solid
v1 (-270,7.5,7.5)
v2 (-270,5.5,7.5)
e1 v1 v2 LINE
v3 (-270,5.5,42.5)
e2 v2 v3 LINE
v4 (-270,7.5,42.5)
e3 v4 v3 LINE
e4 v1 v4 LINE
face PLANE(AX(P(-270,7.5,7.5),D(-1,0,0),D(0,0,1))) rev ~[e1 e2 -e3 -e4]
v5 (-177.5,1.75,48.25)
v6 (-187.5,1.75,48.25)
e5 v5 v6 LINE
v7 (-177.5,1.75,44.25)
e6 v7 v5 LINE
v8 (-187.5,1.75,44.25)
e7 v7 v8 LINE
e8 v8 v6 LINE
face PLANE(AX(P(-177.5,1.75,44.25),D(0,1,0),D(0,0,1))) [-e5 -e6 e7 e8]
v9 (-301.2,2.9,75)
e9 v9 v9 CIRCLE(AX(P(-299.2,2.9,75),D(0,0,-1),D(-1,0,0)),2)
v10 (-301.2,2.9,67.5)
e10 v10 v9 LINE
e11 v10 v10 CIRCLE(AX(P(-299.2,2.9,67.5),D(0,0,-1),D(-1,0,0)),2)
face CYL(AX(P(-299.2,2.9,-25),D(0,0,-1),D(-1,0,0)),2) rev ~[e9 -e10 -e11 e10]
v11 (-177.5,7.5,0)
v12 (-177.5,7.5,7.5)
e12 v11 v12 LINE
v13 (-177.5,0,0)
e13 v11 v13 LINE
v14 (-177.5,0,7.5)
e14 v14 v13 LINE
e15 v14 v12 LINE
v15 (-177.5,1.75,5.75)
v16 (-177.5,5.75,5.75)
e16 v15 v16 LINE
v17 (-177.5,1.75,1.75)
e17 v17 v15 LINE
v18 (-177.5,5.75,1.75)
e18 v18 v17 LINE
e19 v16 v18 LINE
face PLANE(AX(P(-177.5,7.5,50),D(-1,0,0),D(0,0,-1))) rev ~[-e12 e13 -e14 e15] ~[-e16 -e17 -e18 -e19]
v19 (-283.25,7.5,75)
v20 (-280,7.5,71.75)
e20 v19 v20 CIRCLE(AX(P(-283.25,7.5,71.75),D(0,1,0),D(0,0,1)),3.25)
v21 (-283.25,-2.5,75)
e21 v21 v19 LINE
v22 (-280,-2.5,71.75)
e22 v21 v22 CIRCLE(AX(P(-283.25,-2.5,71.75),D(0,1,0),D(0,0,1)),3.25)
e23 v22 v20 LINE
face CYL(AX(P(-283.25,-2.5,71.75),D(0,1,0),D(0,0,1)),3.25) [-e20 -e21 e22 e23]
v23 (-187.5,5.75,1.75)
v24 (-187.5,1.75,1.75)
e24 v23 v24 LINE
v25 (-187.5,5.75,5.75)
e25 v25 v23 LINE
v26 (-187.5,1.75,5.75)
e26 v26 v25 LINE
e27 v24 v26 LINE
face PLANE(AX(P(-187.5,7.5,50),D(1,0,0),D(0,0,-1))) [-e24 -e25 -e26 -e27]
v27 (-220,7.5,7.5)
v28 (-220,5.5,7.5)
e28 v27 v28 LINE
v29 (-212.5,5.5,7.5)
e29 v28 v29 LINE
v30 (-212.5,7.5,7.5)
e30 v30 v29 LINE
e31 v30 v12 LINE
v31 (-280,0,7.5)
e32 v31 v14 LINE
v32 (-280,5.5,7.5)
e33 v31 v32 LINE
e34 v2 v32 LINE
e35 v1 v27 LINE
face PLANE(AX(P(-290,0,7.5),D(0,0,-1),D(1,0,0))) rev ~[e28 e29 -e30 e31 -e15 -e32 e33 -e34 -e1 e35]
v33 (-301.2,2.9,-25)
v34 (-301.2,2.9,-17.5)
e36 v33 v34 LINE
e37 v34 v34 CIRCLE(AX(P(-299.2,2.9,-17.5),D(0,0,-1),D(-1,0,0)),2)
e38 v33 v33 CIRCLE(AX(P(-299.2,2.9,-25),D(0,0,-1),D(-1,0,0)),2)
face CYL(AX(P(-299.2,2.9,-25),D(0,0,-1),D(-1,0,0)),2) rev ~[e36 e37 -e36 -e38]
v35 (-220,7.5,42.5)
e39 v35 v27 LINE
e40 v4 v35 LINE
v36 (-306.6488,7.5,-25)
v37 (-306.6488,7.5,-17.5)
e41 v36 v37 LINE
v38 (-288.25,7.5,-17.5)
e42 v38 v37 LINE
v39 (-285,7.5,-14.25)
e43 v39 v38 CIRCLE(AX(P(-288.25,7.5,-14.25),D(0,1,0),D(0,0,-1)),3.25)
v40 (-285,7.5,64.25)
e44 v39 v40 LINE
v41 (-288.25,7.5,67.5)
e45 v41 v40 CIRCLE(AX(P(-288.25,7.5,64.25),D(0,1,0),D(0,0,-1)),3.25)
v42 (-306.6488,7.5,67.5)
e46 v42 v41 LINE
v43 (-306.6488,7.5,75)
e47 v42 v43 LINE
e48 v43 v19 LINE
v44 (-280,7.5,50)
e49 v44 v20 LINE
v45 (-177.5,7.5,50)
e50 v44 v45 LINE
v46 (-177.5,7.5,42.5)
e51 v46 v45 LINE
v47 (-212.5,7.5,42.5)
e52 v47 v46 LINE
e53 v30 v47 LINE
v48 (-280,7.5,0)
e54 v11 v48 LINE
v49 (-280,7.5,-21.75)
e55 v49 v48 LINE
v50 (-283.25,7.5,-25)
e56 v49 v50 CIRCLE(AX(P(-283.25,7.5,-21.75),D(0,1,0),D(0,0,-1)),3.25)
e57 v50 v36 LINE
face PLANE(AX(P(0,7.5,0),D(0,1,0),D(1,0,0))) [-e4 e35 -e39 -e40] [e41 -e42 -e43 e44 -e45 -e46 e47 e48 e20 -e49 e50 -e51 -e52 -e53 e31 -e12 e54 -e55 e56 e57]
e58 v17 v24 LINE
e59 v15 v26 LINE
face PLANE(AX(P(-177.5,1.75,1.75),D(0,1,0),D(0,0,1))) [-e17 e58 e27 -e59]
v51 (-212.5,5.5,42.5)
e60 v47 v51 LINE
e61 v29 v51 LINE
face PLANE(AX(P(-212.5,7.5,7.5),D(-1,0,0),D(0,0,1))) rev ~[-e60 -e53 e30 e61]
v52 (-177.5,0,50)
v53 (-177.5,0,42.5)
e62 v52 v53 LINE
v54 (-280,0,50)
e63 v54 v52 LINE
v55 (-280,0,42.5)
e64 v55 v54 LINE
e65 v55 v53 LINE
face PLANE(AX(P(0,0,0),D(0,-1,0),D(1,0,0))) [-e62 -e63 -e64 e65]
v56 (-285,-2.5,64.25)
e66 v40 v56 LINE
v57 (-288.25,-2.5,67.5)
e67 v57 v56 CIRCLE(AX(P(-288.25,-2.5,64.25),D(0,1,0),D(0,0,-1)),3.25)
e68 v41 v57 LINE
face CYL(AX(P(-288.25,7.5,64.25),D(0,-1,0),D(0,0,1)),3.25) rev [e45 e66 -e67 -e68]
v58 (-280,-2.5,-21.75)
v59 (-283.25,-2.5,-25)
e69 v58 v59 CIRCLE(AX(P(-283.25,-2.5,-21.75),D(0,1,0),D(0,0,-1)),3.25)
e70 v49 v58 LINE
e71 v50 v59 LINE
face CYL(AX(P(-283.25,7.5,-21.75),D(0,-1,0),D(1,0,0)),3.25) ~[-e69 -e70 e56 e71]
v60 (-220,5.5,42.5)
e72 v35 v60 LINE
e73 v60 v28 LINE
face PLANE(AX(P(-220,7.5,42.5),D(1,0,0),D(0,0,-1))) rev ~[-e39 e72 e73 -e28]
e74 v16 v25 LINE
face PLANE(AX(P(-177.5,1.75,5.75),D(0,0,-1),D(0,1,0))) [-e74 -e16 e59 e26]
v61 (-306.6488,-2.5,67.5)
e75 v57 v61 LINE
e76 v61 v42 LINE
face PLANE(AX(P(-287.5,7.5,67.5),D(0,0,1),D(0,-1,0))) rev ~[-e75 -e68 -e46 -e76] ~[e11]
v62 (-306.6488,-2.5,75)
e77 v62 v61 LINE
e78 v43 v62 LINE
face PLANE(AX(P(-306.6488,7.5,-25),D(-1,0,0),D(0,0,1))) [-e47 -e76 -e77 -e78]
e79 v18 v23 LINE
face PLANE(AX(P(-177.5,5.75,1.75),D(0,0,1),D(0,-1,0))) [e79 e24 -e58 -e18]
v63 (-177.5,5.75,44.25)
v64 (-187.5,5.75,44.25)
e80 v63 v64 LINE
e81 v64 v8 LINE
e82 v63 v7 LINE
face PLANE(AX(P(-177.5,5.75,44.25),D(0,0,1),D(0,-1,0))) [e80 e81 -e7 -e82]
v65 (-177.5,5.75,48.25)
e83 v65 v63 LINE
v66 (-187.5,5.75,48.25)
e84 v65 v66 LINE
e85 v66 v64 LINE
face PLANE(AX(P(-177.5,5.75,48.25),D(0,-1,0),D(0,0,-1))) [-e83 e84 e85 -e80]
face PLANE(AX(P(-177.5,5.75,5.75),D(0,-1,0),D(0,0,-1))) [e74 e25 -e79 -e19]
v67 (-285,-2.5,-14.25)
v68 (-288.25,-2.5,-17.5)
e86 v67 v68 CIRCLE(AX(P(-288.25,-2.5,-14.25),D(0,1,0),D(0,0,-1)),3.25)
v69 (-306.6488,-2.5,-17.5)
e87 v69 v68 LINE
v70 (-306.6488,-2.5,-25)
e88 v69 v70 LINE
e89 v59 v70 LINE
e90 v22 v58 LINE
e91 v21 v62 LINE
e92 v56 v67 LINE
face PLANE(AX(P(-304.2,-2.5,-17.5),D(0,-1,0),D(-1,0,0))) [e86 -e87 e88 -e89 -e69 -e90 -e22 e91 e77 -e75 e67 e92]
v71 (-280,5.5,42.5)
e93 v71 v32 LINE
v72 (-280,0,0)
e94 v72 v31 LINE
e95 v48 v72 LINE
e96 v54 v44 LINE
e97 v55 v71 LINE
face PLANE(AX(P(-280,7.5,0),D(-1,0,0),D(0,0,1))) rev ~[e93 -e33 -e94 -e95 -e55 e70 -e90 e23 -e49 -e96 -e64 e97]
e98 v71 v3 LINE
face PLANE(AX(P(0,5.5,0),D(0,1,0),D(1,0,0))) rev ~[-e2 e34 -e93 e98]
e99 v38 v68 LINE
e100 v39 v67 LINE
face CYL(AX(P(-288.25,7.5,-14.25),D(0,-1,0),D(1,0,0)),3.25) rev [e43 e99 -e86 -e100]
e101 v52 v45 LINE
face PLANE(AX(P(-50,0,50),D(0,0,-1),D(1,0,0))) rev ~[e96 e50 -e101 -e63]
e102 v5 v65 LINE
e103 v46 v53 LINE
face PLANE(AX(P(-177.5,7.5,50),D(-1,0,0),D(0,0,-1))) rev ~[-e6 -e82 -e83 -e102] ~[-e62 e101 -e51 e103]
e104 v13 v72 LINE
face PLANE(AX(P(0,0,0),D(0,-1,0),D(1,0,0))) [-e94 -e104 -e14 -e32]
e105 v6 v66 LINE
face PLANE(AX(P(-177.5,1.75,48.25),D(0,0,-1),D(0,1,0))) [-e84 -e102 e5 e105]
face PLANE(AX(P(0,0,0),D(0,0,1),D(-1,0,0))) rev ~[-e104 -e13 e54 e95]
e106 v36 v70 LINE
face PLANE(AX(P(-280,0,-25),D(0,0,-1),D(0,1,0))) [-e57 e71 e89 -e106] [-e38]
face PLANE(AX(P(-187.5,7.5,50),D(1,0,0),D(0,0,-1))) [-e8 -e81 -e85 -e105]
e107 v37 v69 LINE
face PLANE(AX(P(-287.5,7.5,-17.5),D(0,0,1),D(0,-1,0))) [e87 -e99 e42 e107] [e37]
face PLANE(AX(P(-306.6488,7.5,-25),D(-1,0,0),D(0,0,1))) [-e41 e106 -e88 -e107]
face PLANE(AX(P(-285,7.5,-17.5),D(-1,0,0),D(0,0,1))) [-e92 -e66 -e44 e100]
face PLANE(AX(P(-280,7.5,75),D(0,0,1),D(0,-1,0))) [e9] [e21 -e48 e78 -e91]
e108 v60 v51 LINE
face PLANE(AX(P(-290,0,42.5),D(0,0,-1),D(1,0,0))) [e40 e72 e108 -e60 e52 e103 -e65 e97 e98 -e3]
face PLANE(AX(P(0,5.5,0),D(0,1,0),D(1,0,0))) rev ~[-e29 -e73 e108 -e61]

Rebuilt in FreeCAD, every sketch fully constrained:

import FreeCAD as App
import Part
import Sketcher

V = App.Vector


def edges_at(feature, points):
    """Names of the edges that pass closest to the given points."""
    edges = feature.Shape.Edges
    near = lambda p: min(range(len(edges)), key=lambda i: edges[i].distToShape(Part.Vertex(*p))[0])
    return sorted({f"Edge{near(p) + 1}" for p in points})

doc = App.newDocument("Part")
body = doc.addObject("PartDesign::Body", "Body")

# Sketch on XZ plane
sketch1 = body.newObject("Sketcher::SketchObject", "Sketch")
sketch1.AttachmentSupport = (doc.getObject("XZ_Plane"), [""])
sketch1.MapMode = "FlatFace"
sketch1.addGeometry([
    Part.LineSegment(V(0, 50, 0), V(0, 0, 0)),  # 0
    Part.LineSegment(V(0, 0, 0), V(-290, 0, 0)),  # 1
    Part.LineSegment(V(-290, 0, 0), V(-290, 7.5, 0)),  # 2
    Part.LineSegment(V(-290, 7.5, 0), V(-50, 7.5, 0)),  # 3
    Part.LineSegment(V(-50, 7.5, 0), V(-50, 42.5, 0)),  # 4
    Part.LineSegment(V(-50, 42.5, 0), V(-290, 42.5, 0)),  # 5
    Part.LineSegment(V(-290, 42.5, 0), V(-290, 50, 0)),  # 6
    Part.LineSegment(V(-290, 50, 0), V(0, 50, 0)),  # 7
], False)
sketch1.addConstraint([
    Sketcher.Constraint("Coincident", 0, 2, 1, 1),
    Sketcher.Constraint("Coincident", 1, 2, 2, 1),
    Sketcher.Constraint("Coincident", 2, 2, 3, 1),
    Sketcher.Constraint("Coincident", 3, 2, 4, 1),
    Sketcher.Constraint("Coincident", 4, 2, 5, 1),
    Sketcher.Constraint("Coincident", 5, 2, 6, 1),
    Sketcher.Constraint("Coincident", 6, 2, 7, 1),
    Sketcher.Constraint("Coincident", 7, 2, 0, 1),
    Sketcher.Constraint("Vertical", 0),
    Sketcher.Constraint("Horizontal", 1),
    Sketcher.Constraint("Vertical", 2),
    Sketcher.Constraint("Horizontal", 3),
    Sketcher.Constraint("Vertical", 4),
    Sketcher.Constraint("Horizontal", 5),
    Sketcher.Constraint("Vertical", 6),
    Sketcher.Constraint("Horizontal", 7),
    Sketcher.Constraint("Coincident", 0, 2, -1, 1),
    Sketcher.Constraint("Vertical", 2, 2, 5, 2),
    Sketcher.Constraint("Equal", 2, 6),
    Sketcher.Constraint("DistanceX", 3, 1, 3, 2, 240.0),
    Sketcher.Constraint("DistanceY", 0, 2, 0, 1, 50.0),
    Sketcher.Constraint("DistanceY", 2, 1, 2, 2, 7.5),
    Sketcher.Constraint("DistanceX", 3, 2, -1, 1, 50.0),
])
pad1 = body.newObject("PartDesign::Pad", "Pad")
pad1.Profile = sketch1
pad1.Length = 7.5
pad1.Reversed = True

# Sketch on XZ plane
sketch2 = body.newObject("Sketcher::SketchObject", "Sketch001")
sketch2.AttachmentSupport = (doc.getObject("XZ_Plane"), [""])
sketch2.MapMode = "FlatFace"
sketch2.AttachmentOffset = App.Placement(V(0, 0, -7.5), App.Rotation())
sketch2.addGeometry(Part.Circle(V(0, 25, 0), V(0, 0, 1), 3.175), False)
sketch2.addConstraint([
    Sketcher.Constraint("PointOnObject", 0, 3, -2),
    Sketcher.Constraint("Diameter", 0, 6.35),
    Sketcher.Constraint("DistanceY", -1, 1, 0, 3, 25.0),
])
doc.recompute()
hole = body.newObject("PartDesign::Hole", "Hole")
hole.Profile = sketch2
hole.ThreadType = "None"
hole.Diameter = 6.35
hole.DepthType = "ThroughAll"
hole.Reversed = True

# Sketch on XZ plane
sketch3 = body.newObject("Sketcher::SketchObject", "Sketch002")
sketch3.AttachmentSupport = (doc.getObject("XZ_Plane"), [""])
sketch3.MapMode = "FlatFace"
sketch3.AttachmentOffset = App.Placement(V(0, 0, -7.5), App.Rotation())
sketch3.addGeometry([
    Part.Circle(V(-7.175, 4, 0), V(0, 0, 1), 1.65),
    Part.Circle(V(-24.175, 46, 0), V(0, 0, 1), 1.65),
], False)
sketch3.addConstraint([
    Sketcher.Constraint("Equal", 0, 1),
    Sketcher.Constraint("Diameter", 0, 3.3),
    Sketcher.Constraint("DistanceY", -1, 1, 0, 3, 4.0),
    Sketcher.Constraint("DistanceY", -1, 1, 1, 3, 46.0),
    Sketcher.Constraint("DistanceX", 1, 3, 0, 3, 17.0),
    Sketcher.Constraint("DistanceX", 0, 3, -1, 1, 7.175),
])
doc.recompute()
hole2 = body.newObject("PartDesign::Hole", "Hole001")
hole2.Profile = sketch3
hole2.ThreadType = "None"
hole2.Diameter = 3.3
hole2.DepthType = "ThroughAll"
hole2.Reversed = True

# Sketch on XZ plane
sketch4 = body.newObject("Sketcher::SketchObject", "Sketch003")
sketch4.AttachmentSupport = (doc.getObject("XZ_Plane"), [""])
sketch4.MapMode = "FlatFace"
sketch4.AttachmentOffset = App.Placement(V(0, 0, -7.5), App.Rotation())
sketch4.addGeometry([
    Part.LineSegment(V(-40, 32.5, 0), V(-45, 32.5, 0)),
    Part.LineSegment(V(-45, 32.5, 0), V(-45, 42.5, 0)),
    Part.LineSegment(V(-45, 42.5, 0), V(-40, 42.5, 0)),
    Part.LineSegment(V(-40, 42.5, 0), V(-40, 32.5, 0)),
], False)
sketch4.addConstraint([
    Sketcher.Constraint("Coincident", 0, 2, 1, 1),
    Sketcher.Constraint("Coincident", 1, 2, 2, 1),
    Sketcher.Constraint("Coincident", 2, 2, 3, 1),
    Sketcher.Constraint("Coincident", 3, 2, 0, 1),
    Sketcher.Constraint("Horizontal", 0),
    Sketcher.Constraint("Vertical", 1),
    Sketcher.Constraint("Horizontal", 2),
    Sketcher.Constraint("Vertical", 3),
    Sketcher.Constraint("DistanceX", 0, 2, 0, 1, 5.0),
    Sketcher.Constraint("DistanceY", 1, 1, 1, 2, 10.0),
    Sketcher.Constraint("DistanceX", 0, 2, -1, 1, 45.0),
    Sketcher.Constraint("DistanceY", -1, 1, 0, 2, 32.5),
])
pad2 = body.newObject("PartDesign::Pad", "Pad001")
pad2.Profile = sketch4
pad2.Length = 17.5
pad2.Reversed = True

# Sketch on XZ plane
sketch5 = body.newObject("Sketcher::SketchObject", "Sketch004")
sketch5.AttachmentSupport = (doc.getObject("XZ_Plane"), [""])
sketch5.MapMode = "FlatFace"
sketch5.AttachmentOffset = App.Placement(V(0, 0, -7.5), App.Rotation())
sketch5.addGeometry([
    Part.LineSegment(V(-85, 42.5, 0), V(-85, 7.5, 0)),  # 0
    Part.LineSegment(V(-85, 7.5, 0), V(-92.5, 7.5, 0)),  # 1
    Part.LineSegment(V(-92.5, 7.5, 0), V(-92.5, 42.5, 0)),  # 2
    Part.LineSegment(V(-92.5, 42.5, 0), V(-85, 42.5, 0)),  # 3
    Part.LineSegment(V(-127.5, 42.5, 0), V(-127.5, 7.5, 0)),  # 4
    Part.LineSegment(V(-127.5, 7.5, 0), V(-135, 7.5, 0)),  # 5
    Part.LineSegment(V(-135, 7.5, 0), V(-135, 42.5, 0)),  # 6
    Part.LineSegment(V(-135, 42.5, 0), V(-127.5, 42.5, 0)),  # 7
    Part.LineSegment(V(-212.5, 7.5, 0), V(-220, 7.5, 0)),  # 8
    Part.LineSegment(V(-220, 7.5, 0), V(-220, 42.5, 0)),  # 9
    Part.LineSegment(V(-220, 42.5, 0), V(-212.5, 42.5, 0)),  # 10
    Part.LineSegment(V(-212.5, 42.5, 0), V(-212.5, 7.5, 0)),  # 11
    Part.LineSegment(V(-170, 7.5, 0), V(-177.5, 7.5, 0)),  # 12
    Part.LineSegment(V(-177.5, 7.5, 0), V(-177.5, 42.5, 0)),  # 13
    Part.LineSegment(V(-177.5, 42.5, 0), V(-170, 42.5, 0)),  # 14
    Part.LineSegment(V(-170, 42.5, 0), V(-170, 7.5, 0)),  # 15
], False)
sketch5.addConstraint([
    Sketcher.Constraint("Coincident", 0, 2, 1, 1),
    Sketcher.Constraint("Coincident", 1, 2, 2, 1),
    Sketcher.Constraint("Coincident", 2, 2, 3, 1),
    Sketcher.Constraint("Coincident", 3, 2, 0, 1),
    Sketcher.Constraint("Coincident", 4, 2, 5, 1),
    Sketcher.Constraint("Coincident", 5, 2, 6, 1),
    Sketcher.Constraint("Coincident", 6, 2, 7, 1),
    Sketcher.Constraint("Coincident", 7, 2, 4, 1),
    Sketcher.Constraint("Coincident", 8, 2, 9, 1),
    Sketcher.Constraint("Coincident", 9, 2, 10, 1),
    Sketcher.Constraint("Coincident", 10, 2, 11, 1),
    Sketcher.Constraint("Coincident", 11, 2, 8, 1),
    Sketcher.Constraint("Coincident", 12, 2, 13, 1),
    Sketcher.Constraint("Coincident", 13, 2, 14, 1),
    Sketcher.Constraint("Coincident", 14, 2, 15, 1),
    Sketcher.Constraint("Coincident", 15, 2, 12, 1),
    Sketcher.Constraint("Vertical", 0),
    Sketcher.Constraint("Horizontal", 1),
    Sketcher.Constraint("Vertical", 2),
    Sketcher.Constraint("Horizontal", 3),
    Sketcher.Constraint("Vertical", 4),
    Sketcher.Constraint("Horizontal", 5),
    Sketcher.Constraint("Vertical", 6),
    Sketcher.Constraint("Horizontal", 7),
    Sketcher.Constraint("Horizontal", 8),
    Sketcher.Constraint("Vertical", 9),
    Sketcher.Constraint("Horizontal", 10),
    Sketcher.Constraint("Vertical", 11),
    Sketcher.Constraint("Horizontal", 12),
    Sketcher.Constraint("Vertical", 13),
    Sketcher.Constraint("Horizontal", 14),
    Sketcher.Constraint("Vertical", 15),
    Sketcher.Constraint("Horizontal", 1, 2, 4, 2),
    Sketcher.Constraint("Horizontal", 3, 2, 6, 2),
    Sketcher.Constraint("Horizontal", 5, 2, 8, 2),
    Sketcher.Constraint("Horizontal", 7, 2, 9, 2),
    Sketcher.Constraint("Horizontal", 11, 2, 12, 2),
    Sketcher.Constraint("Horizontal", 10, 2, 13, 2),
    Sketcher.Constraint("Equal", 3, 5),
    Sketcher.Constraint("Equal", 7, 8),
    Sketcher.Constraint("Equal", 10, 12),
    Sketcher.Constraint("DistanceY", 0, 2, 0, 1, 35.0),
    Sketcher.Constraint("DistanceX", 4, 2, 1, 2, 35.0),
    Sketcher.Constraint("DistanceX", 11, 2, 12, 2, 35.0),
    Sketcher.Constraint("DistanceX", 14, 2, 6, 2, 35.0),
    Sketcher.Constraint("DistanceX", 1, 2, 1, 1, 7.5),
    Sketcher.Constraint("DistanceX", 0, 2, -1, 1, 85.0),
    Sketcher.Constraint("DistanceY", -1, 1, 0, 2, 7.5),
])
pad3 = body.newObject("PartDesign::Pad", "Pad002")
pad3.Profile = sketch5
pad3.Length = 2

# Sketch on XZ plane
sketch6 = body.newObject("Sketcher::SketchObject", "Sketch005")
sketch6.AttachmentSupport = (doc.getObject("XZ_Plane"), [""])
sketch6.MapMode = "FlatFace"
sketch6.AttachmentOffset = App.Placement(V(0, 0, -7.5), App.Rotation())
sketch6.addGeometry([
    Part.LineSegment(V(-280, 0, 0), V(-290, 0, 0)),
    Part.LineSegment(V(-290, 0, 0), V(-290, 50, 0)),
    Part.LineSegment(V(-290, 50, 0), V(-280, 50, 0)),
    Part.LineSegment(V(-280, 50, 0), V(-280, 0, 0)),
], False)
sketch6.addConstraint([
    Sketcher.Constraint("Coincident", 0, 2, 1, 1),
    Sketcher.Constraint("Coincident", 1, 2, 2, 1),
    Sketcher.Constraint("Coincident", 2, 2, 3, 1),
    Sketcher.Constraint("Coincident", 3, 2, 0, 1),
    Sketcher.Constraint("Horizontal", 0),
    Sketcher.Constraint("Vertical", 1),
    Sketcher.Constraint("Horizontal", 2),
    Sketcher.Constraint("Vertical", 3),
    Sketcher.Constraint("PointOnObject", 0, 2, -1),
    Sketcher.Constraint("DistanceX", 0, 2, 0, 1, 10.0),
    Sketcher.Constraint("DistanceY", 1, 1, 1, 2, 50.0),
    Sketcher.Constraint("DistanceX", 0, 2, -1, 1, 290.0),
])
pocket1 = body.newObject("PartDesign::Pocket", "Pocket")
pocket1.Profile = sketch6
pocket1.Length = 7.5
pocket1.Reversed = True

# Sketch on YZ plane
sketch7 = body.newObject("Sketcher::SketchObject", "Sketch006")
sketch7.AttachmentSupport = (doc.getObject("YZ_Plane"), [""])
sketch7.MapMode = "FlatFace"
sketch7.AttachmentOffset = App.Placement(V(0, 0, -280), App.Rotation())
sketch7.addGeometry([
    Part.LineSegment(V(7.5, 75, 0), V(7.5, -25, 0)),
    Part.LineSegment(V(7.5, -25, 0), V(-2.5, -25, 0)),
    Part.LineSegment(V(-2.5, -25, 0), V(-2.5, 75, 0)),
    Part.LineSegment(V(-2.5, 75, 0), V(7.5, 75, 0)),
], False)
sketch7.addConstraint([
    Sketcher.Constraint("Coincident", 0, 2, 1, 1),
    Sketcher.Constraint("Coincident", 1, 2, 2, 1),
    Sketcher.Constraint("Coincident", 2, 2, 3, 1),
    Sketcher.Constraint("Coincident", 3, 2, 0, 1),
    Sketcher.Constraint("Vertical", 0),
    Sketcher.Constraint("Horizontal", 1),
    Sketcher.Constraint("Vertical", 2),
    Sketcher.Constraint("Horizontal", 3),
    Sketcher.Constraint("DistanceX", 1, 2, 1, 1, 10.0),
    Sketcher.Constraint("DistanceY", 0, 2, 0, 1, 100.0),
    Sketcher.Constraint("DistanceY", 0, 2, -1, 1, 25.0),
    Sketcher.Constraint("DistanceX", -1, 1, 0, 2, 7.5),
])
pad4 = body.newObject("PartDesign::Pad", "Pad003")
pad4.Profile = sketch7
pad4.Length = 7.5
pad4.Reversed = True

# Sketch on YZ plane
sketch8 = body.newObject("Sketcher::SketchObject", "Sketch007")
sketch8.AttachmentSupport = (doc.getObject("YZ_Plane"), [""])
sketch8.MapMode = "FlatFace"
sketch8.AttachmentOffset = App.Placement(V(0, 0, -287.5), App.Rotation())
sketch8.addGeometry([
    Part.LineSegment(V(-2.5, 75, 0), V(7.5, 75, 0)),  # 0
    Part.LineSegment(V(7.5, 75, 0), V(7.5, 67.5, 0)),  # 1
    Part.LineSegment(V(7.5, 67.5, 0), V(-2.5, 67.5, 0)),  # 2
    Part.LineSegment(V(-2.5, 67.5, 0), V(-2.5, 75, 0)),  # 3
    Part.LineSegment(V(-2.5, -17.5, 0), V(7.5, -17.5, 0)),  # 4
    Part.LineSegment(V(7.5, -17.5, 0), V(7.5, -25, 0)),  # 5
    Part.LineSegment(V(7.5, -25, 0), V(-2.5, -25, 0)),  # 6
    Part.LineSegment(V(-2.5, -25, 0), V(-2.5, -17.5, 0)),  # 7
], False)
sketch8.addConstraint([
    Sketcher.Constraint("Coincident", 0, 2, 1, 1),
    Sketcher.Constraint("Coincident", 1, 2, 2, 1),
    Sketcher.Constraint("Coincident", 2, 2, 3, 1),
    Sketcher.Constraint("Coincident", 3, 2, 0, 1),
    Sketcher.Constraint("Coincident", 4, 2, 5, 1),
    Sketcher.Constraint("Coincident", 5, 2, 6, 1),
    Sketcher.Constraint("Coincident", 6, 2, 7, 1),
    Sketcher.Constraint("Coincident", 7, 2, 4, 1),
    Sketcher.Constraint("Horizontal", 0),
    Sketcher.Constraint("Vertical", 1),
    Sketcher.Constraint("Horizontal", 2),
    Sketcher.Constraint("Vertical", 3),
    Sketcher.Constraint("Horizontal", 4),
    Sketcher.Constraint("Vertical", 5),
    Sketcher.Constraint("Horizontal", 6),
    Sketcher.Constraint("Vertical", 7),
    Sketcher.Constraint("Vertical", 1, 2, 4, 2),
    Sketcher.Constraint("Vertical", 3, 2, 6, 2),
    Sketcher.Constraint("Equal", 3, 5),
    Sketcher.Constraint("DistanceY", 1, 2, 1, 1, 7.5),
    Sketcher.Constraint("DistanceX", -1, 1, 0, 2, 7.5),
    Sketcher.Constraint("DistanceX", 0, 1, 0, 2, 10.0),
    Sketcher.Constraint("DistanceY", -1, 1, 0, 2, 75.0),
    Sketcher.Constraint("DistanceY", 5, 2, -1, 1, 25.0),
])
pad5 = body.newObject("PartDesign::Pad", "Pad004")
pad5.Profile = sketch8
pad5.Length = 25
pad5.Reversed = True

# Sketch on XY plane
sketch9 = body.newObject("Sketcher::SketchObject", "Sketch008")
sketch9.AttachmentSupport = (doc.getObject("XY_Plane"), [""])
sketch9.MapMode = "FlatFace"
sketch9.AttachmentOffset = App.Placement(V(0, 0, -17.5), App.Rotation())
sketch9.addGeometry([
    Part.LineSegment(V(-293.7, -2.5, 0), V(-290.5, -2.5, 0)),
    Part.LineSegment(V(-290.5, -2.5, 0), V(-290.5, -0.4, 0)),
    Part.LineSegment(V(-290.5, -0.4, 0), V(-293.7, -0.4, 0)),
    Part.LineSegment(V(-293.7, -0.4, 0), V(-293.7, -2.5, 0)),
], False)
sketch9.addConstraint([
    Sketcher.Constraint("Coincident", 0, 2, 1, 1),
    Sketcher.Constraint("Coincident", 1, 2, 2, 1),
    Sketcher.Constraint("Coincident", 2, 2, 3, 1),
    Sketcher.Constraint("Coincident", 3, 2, 0, 1),
    Sketcher.Constraint("Horizontal", 0),
    Sketcher.Constraint("Vertical", 1),
    Sketcher.Constraint("Horizontal", 2),
    Sketcher.Constraint("Vertical", 3),
    Sketcher.Constraint("DistanceX", 0, 1, 0, 2, 3.2),
    Sketcher.Constraint("DistanceY", 1, 1, 1, 2, 2.1),
    Sketcher.Constraint("DistanceX", 0, 2, -1, 1, 290.5),
    Sketcher.Constraint("DistanceY", 0, 2, -1, 1, 2.5),
])
pad6 = body.newObject("PartDesign::Pad", "Pad005")
pad6.Profile = sketch9
pad6.Length = 92.5

# Sketch on XY plane
sketch10 = body.newObject("Sketcher::SketchObject", "Sketch009")
sketch10.AttachmentSupport = (doc.getObject("XY_Plane"), [""])
sketch10.MapMode = "FlatFace"
sketch10.AttachmentOffset = App.Placement(V(0, 0, -17.5), App.Rotation())
sketch10.addGeometry(Part.Circle(V(-299.2, 2.9, 0), V(0, 0, 1), 2.125), False)
sketch10.addConstraint([
    Sketcher.Constraint("Diameter", 0, 4.25),
    Sketcher.Constraint("DistanceX", 0, 3, -1, 1, 299.2),
    Sketcher.Constraint("DistanceY", -1, 1, 0, 3, 2.9),
])
pocket2 = body.newObject("PartDesign::Pocket", "Pocket001")
pocket2.Profile = sketch10
pocket2.Length = 241
pocket2.Midplane = True

# Sketch on XY plane
sketch11 = body.newObject("Sketcher::SketchObject", "Sketch010")
sketch11.AttachmentSupport = (doc.getObject("XY_Plane"), [""])
sketch11.MapMode = "FlatFace"
sketch11.AttachmentOffset = App.Placement(V(0, 0, -17.5), App.Rotation())
sketch11.addGeometry([
    Part.LineSegment(V(-306.7, -2.5, 0), V(-304.2, -2.5, 0)),
    Part.LineSegment(V(-304.2, -2.5, 0), V(-304.2, -1.54, 0)),
    Part.LineSegment(V(-304.2, -1.54, 0), V(-306.7, -1.54, 0)),
    Part.LineSegment(V(-306.7, -1.54, 0), V(-306.7, -2.5, 0)),
], False)
sketch11.addConstraint([
    Sketcher.Constraint("Coincident", 0, 2, 1, 1),
    Sketcher.Constraint("Coincident", 1, 2, 2, 1),
    Sketcher.Constraint("Coincident", 2, 2, 3, 1),
    Sketcher.Constraint("Coincident", 3, 2, 0, 1),
    Sketcher.Constraint("Horizontal", 0),
    Sketcher.Constraint("Vertical", 1),
    Sketcher.Constraint("Horizontal", 2),
    Sketcher.Constraint("Vertical", 3),
    Sketcher.Constraint("DistanceX", 0, 1, 0, 2, 2.5),
    Sketcher.Constraint("DistanceY", 0, 2, -1, 1, 2.5),
    Sketcher.Constraint("DistanceY", 1, 1, 1, 2, 0.96),
    Sketcher.Constraint("DistanceX", 0, 2, -1, 1, 304.2),
])
pad7 = body.newObject("PartDesign::Pad", "Pad006")
pad7.Profile = sketch11
pad7.Length = 91.25

# Sketch on XZ plane
sketch12 = body.newObject("Sketcher::SketchObject", "Sketch011")
sketch12.AttachmentSupport = (doc.getObject("XZ_Plane"), [""])
sketch12.MapMode = "FlatFace"
sketch12.AttachmentOffset = App.Placement(V(0, 0, 0.4), App.Rotation())
sketch12.addGeometry([
    Part.LineSegment(V(-290.5, 12.5, 0), V(-293.7, 12.5, 0)),
    Part.LineSegment(V(-293.7, 12.5, 0), V(-293.7, 18.85, 0)),
    Part.LineSegment(V(-293.7, 18.85, 0), V(-290.5, 18.85, 0)),
    Part.LineSegment(V(-290.5, 18.85, 0), V(-290.5, 12.5, 0)),
], False)
sketch12.addConstraint([
    Sketcher.Constraint("Coincident", 0, 2, 1, 1),
    Sketcher.Constraint("Coincident", 1, 2, 2, 1),
    Sketcher.Constraint("Coincident", 2, 2, 3, 1),
    Sketcher.Constraint("Coincident", 3, 2, 0, 1),
    Sketcher.Constraint("Horizontal", 0),
    Sketcher.Constraint("Vertical", 1),
    Sketcher.Constraint("Horizontal", 2),
    Sketcher.Constraint("Vertical", 3),
    Sketcher.Constraint("DistanceY", 1, 1, 1, 2, 6.35),
    Sketcher.Constraint("DistanceX", 0, 2, 0, 1, 3.2),
    Sketcher.Constraint("DistanceX", 0, 2, -1, 1, 293.7),
    Sketcher.Constraint("DistanceY", -1, 1, 0, 2, 12.5),
])
pad8 = body.newObject("PartDesign::Pad", "Pad007")
pad8.Profile = sketch12
pad8.Length = 3.8
pad8.Reversed = True

# Sketch on XZ plane
sketch13 = body.newObject("Sketcher::SketchObject", "Sketch012")
sketch13.AttachmentSupport = (doc.getObject("XZ_Plane"), [""])
sketch13.MapMode = "FlatFace"
sketch13.AttachmentOffset = App.Placement(V(0, 0, -7.5), App.Rotation())
sketch13.addGeometry([
    Part.LineSegment(V(-285, -17.5, 0), V(-287.5, -17.5, 0)),
    Part.LineSegment(V(-287.5, -17.5, 0), V(-287.5, 67.5, 0)),
    Part.LineSegment(V(-287.5, 67.5, 0), V(-285, 67.5, 0)),
    Part.LineSegment(V(-285, 67.5, 0), V(-285, -17.5, 0)),
], False)
sketch13.addConstraint([
    Sketcher.Constraint("Coincident", 0, 2, 1, 1),
    Sketcher.Constraint("Coincident", 1, 2, 2, 1),
    Sketcher.Constraint("Coincident", 2, 2, 3, 1),
    Sketcher.Constraint("Coincident", 3, 2, 0, 1),
    Sketcher.Constraint("Horizontal", 0),
    Sketcher.Constraint("Vertical", 1),
    Sketcher.Constraint("Horizontal", 2),
    Sketcher.Constraint("Vertical", 3),
    Sketcher.Constraint("DistanceX", 0, 2, 0, 1, 2.5),
    Sketcher.Constraint("DistanceY", 1, 1, 1, 2, 85.0),
    Sketcher.Constraint("DistanceX", 2, 2, -1, 1, 285.0),
    Sketcher.Constraint("DistanceY", 0, 2, -1, 1, 17.5),
])
pocket3 = body.newObject("PartDesign::Pocket", "Pocket002")
pocket3.Profile = sketch13
pocket3.Length = 14.55
pocket3.Reversed = True

# Sketch on XZ plane
sketch14 = body.newObject("Sketcher::SketchObject", "Sketch013")
sketch14.AttachmentSupport = (doc.getObject("XZ_Plane"), [""])
sketch14.MapMode = "FlatFace"
sketch14.AttachmentOffset = App.Placement(V(0, 0, -7.5), App.Rotation())
sketch14.addGeometry([
    Part.LineSegment(V(-312.5, -25, 0), V(-312.5, 75, 0)),
    Part.LineSegment(V(-312.5, 75, 0), V(-306.6488, 75, 0)),
    Part.LineSegment(V(-306.6488, 75, 0), V(-306.6488, -25, 0)),
    Part.LineSegment(V(-306.6488, -25, 0), V(-312.5, -25, 0)),
], False)
sketch14.addConstraint([
    Sketcher.Constraint("Coincident", 0, 2, 1, 1),
    Sketcher.Constraint("Coincident", 1, 2, 2, 1),
    Sketcher.Constraint("Coincident", 2, 2, 3, 1),
    Sketcher.Constraint("Coincident", 3, 2, 0, 1),
    Sketcher.Constraint("Vertical", 0),
    Sketcher.Constraint("Horizontal", 1),
    Sketcher.Constraint("Vertical", 2),
    Sketcher.Constraint("Horizontal", 3),
    Sketcher.Constraint("DistanceY", 0, 1, 0, 2, 100.0),
    Sketcher.Constraint("DistanceY", -1, 1, 0, 2, 75.0),
    Sketcher.Constraint("DistanceX", 0, 2, -1, 1, 312.5),
    Sketcher.Constraint("DistanceX", 1, 1, 1, 2, 5.8512),
])
pocket4 = body.newObject("PartDesign::Pocket", "Pocket003")
pocket4.Profile = sketch14
pocket4.Length = 14.55
pocket4.Reversed = True
doc.recompute()

fillet = body.newObject("PartDesign::Fillet", "Fillet")
fillet.Base = (pocket4, edges_at(pocket4, [(-301.325, 2.9, -17.5)]))
fillet.Radius = 0.1
doc.recompute()

fillet2 = body.newObject("PartDesign::Fillet", "Fillet001")
fillet2.Base = (fillet, edges_at(fillet, [(-301.325, 2.9, 67.5)]))
fillet2.Radius = 0.1
doc.recompute()

fillet3 = body.newObject("PartDesign::Fillet", "Fillet002")
fillet3.Base = (fillet2, edges_at(fillet2, [(-280, 2.5, 75)]))
fillet3.Radius = 3.25
doc.recompute()

fillet4 = body.newObject("PartDesign::Fillet", "Fillet003")
fillet4.Base = (fillet3, edges_at(fillet3, [(-285, 2.5, 67.5)]))
fillet4.Radius = 3.25
doc.recompute()

fillet5 = body.newObject("PartDesign::Fillet", "Fillet004")
fillet5.Base = (fillet4, edges_at(fillet4, [(-280, 2.5, -25)]))
fillet5.Radius = 3.25
doc.recompute()

fillet6 = body.newObject("PartDesign::Fillet", "Fillet005")
fillet6.Base = (fillet5, edges_at(fillet5, [(-285, 2.5, -17.5)]))
fillet6.Radius = 3.25

# Sketch on XZ plane
sketch15 = body.newObject("Sketcher::SketchObject", "Sketch014")
sketch15.AttachmentSupport = (doc.getObject("XZ_Plane"), [""])
sketch15.MapMode = "FlatFace"
sketch15.AttachmentOffset = App.Placement(V(0, 0, -7.5), App.Rotation())
sketch15.addGeometry([
    Part.LineSegment(V(-270, 7.5, 0), V(-280, 7.5, 0)),
    Part.LineSegment(V(-280, 7.5, 0), V(-280, 42.5, 0)),
    Part.LineSegment(V(-280, 42.5, 0), V(-270, 42.5, 0)),
    Part.LineSegment(V(-270, 42.5, 0), V(-270, 7.5, 0)),
], False)
sketch15.addConstraint([
    Sketcher.Constraint("Coincident", 0, 2, 1, 1),
    Sketcher.Constraint("Coincident", 1, 2, 2, 1),
    Sketcher.Constraint("Coincident", 2, 2, 3, 1),
    Sketcher.Constraint("Coincident", 3, 2, 0, 1),
    Sketcher.Constraint("Horizontal", 0),
    Sketcher.Constraint("Vertical", 1),
    Sketcher.Constraint("Horizontal", 2),
    Sketcher.Constraint("Vertical", 3),
    Sketcher.Constraint("DistanceX", 0, 2, 0, 1, 10.0),
    Sketcher.Constraint("DistanceY", 1, 1, 1, 2, 35.0),
    Sketcher.Constraint("DistanceX", 0, 2, -1, 1, 280.0),
    Sketcher.Constraint("DistanceY", -1, 1, 0, 2, 7.5),
])
pad9 = body.newObject("PartDesign::Pad", "Pad008")
pad9.Profile = sketch15
pad9.Length = 2

# Sketch on XZ plane
sketch16 = body.newObject("Sketcher::SketchObject", "Sketch015")
sketch16.AttachmentSupport = (doc.getObject("XZ_Plane"), [""])
sketch16.MapMode = "FlatFace"
sketch16.AttachmentOffset = App.Placement(V(0, 0, -7.5), App.Rotation())
sketch16.addGeometry([
    Part.Circle(V(-275, 12.5, 0), V(0, 0, 1), 1.65),
    Part.Circle(V(-275, 37.5, 0), V(0, 0, 1), 1.65),
], False)
sketch16.addConstraint([
    Sketcher.Constraint("Equal", 0, 1),
    Sketcher.Constraint("Vertical", 0, 3, 1, 3),
    Sketcher.Constraint("Diameter", 0, 3.3),
    Sketcher.Constraint("DistanceX", 0, 3, -1, 1, 275.0),
    Sketcher.Constraint("DistanceY", 0, 3, 1, 3, 25.0),
    Sketcher.Constraint("DistanceY", -1, 1, 0, 3, 12.5),
])
doc.recompute()
hole3 = body.newObject("PartDesign::Hole", "Hole002")
hole3.Profile = sketch16
hole3.ThreadType = "None"
hole3.Diameter = 3.3
hole3.DepthType = "Dimension"
hole3.Depth = 15
hole3.DrillPoint = "Angled"
hole3.DrillPointAngle = 118
hole3.Reversed = True

# Sketch on XZ plane
sketch17 = body.newObject("Sketcher::SketchObject", "Sketch016")
sketch17.AttachmentSupport = (doc.getObject("XZ_Plane"), [""])
sketch17.MapMode = "FlatFace"
sketch17.AttachmentOffset = App.Placement(V(0, 0, -7.5), App.Rotation())
sketch17.addGeometry([
    Part.Circle(V(-216.25, 12.5, 0), V(0, 0, 1), 1.65),
    Part.Circle(V(-216.25, 37.5, 0), V(0, 0, 1), 1.65),
], False)
sketch17.addConstraint([
    Sketcher.Constraint("Equal", 0, 1),
    Sketcher.Constraint("Vertical", 0, 3, 1, 3),
    Sketcher.Constraint("Diameter", 0, 3.3),
    Sketcher.Constraint("DistanceY", 0, 3, 1, 3, 25.0),
    Sketcher.Constraint("DistanceY", -1, 1, 0, 3, 12.5),
    Sketcher.Constraint("DistanceX", 0, 3, -1, 1, 216.25),
])
doc.recompute()
hole4 = body.newObject("PartDesign::Hole", "Hole003")
hole4.Profile = sketch17
hole4.ThreadType = "None"
hole4.Diameter = 3.3
hole4.DepthType = "Dimension"
hole4.Depth = 15
hole4.DrillPoint = "Angled"
hole4.DrillPointAngle = 118
hole4.Reversed = True

# Sketch on YZ plane
sketch18 = body.newObject("Sketcher::SketchObject", "Sketch017")
sketch18.AttachmentSupport = (doc.getObject("YZ_Plane"), [""])
sketch18.MapMode = "FlatFace"
sketch18.AttachmentOffset = App.Placement(V(0, 0, -45), App.Rotation())
sketch18.addGeometry(Part.Circle(V(20, 37.5, 0), V(0, 0, 1), 3), False)
sketch18.addConstraint([
    Sketcher.Constraint("Diameter", 0, 6.0),
    Sketcher.Constraint("DistanceX", -1, 1, 0, 3, 20.0),
    Sketcher.Constraint("DistanceY", -1, 1, 0, 3, 37.5),
])
pocket5 = body.newObject("PartDesign::Pocket", "Pocket004")
pocket5.Profile = sketch18
pocket5.Length = 20
pocket5.Reversed = True

# Sketch on XZ plane
sketch19 = body.newObject("Sketcher::SketchObject", "Sketch018")
sketch19.AttachmentSupport = (doc.getObject("XZ_Plane"), [""])
sketch19.MapMode = "FlatFace"
sketch19.AttachmentOffset = App.Placement(V(0, 0, -7.5), App.Rotation())
sketch19.addGeometry([
    Part.LineSegment(V(-288.25, -17.5, 0), V(-306.6488, -17.5, 0)),
    Part.LineSegment(V(-306.6488, -17.5, 0), V(-306.6488, 67.5, 0)),
    Part.LineSegment(V(-306.6488, 67.5, 0), V(-288.25, 67.5, 0)),
    Part.LineSegment(V(-288.25, 67.5, 0), V(-288.25, -17.5, 0)),
], False)
sketch19.addConstraint([
    Sketcher.Constraint("Coincident", 0, 2, 1, 1),
    Sketcher.Constraint("Coincident", 1, 2, 2, 1),
    Sketcher.Constraint("Coincident", 2, 2, 3, 1),
    Sketcher.Constraint("Coincident", 3, 2, 0, 1),
    Sketcher.Constraint("Horizontal", 0),
    Sketcher.Constraint("Vertical", 1),
    Sketcher.Constraint("Horizontal", 2),
    Sketcher.Constraint("Vertical", 3),
    Sketcher.Constraint("DistanceY", 1, 1, 1, 2, 85.0),
    Sketcher.Constraint("DistanceY", 0, 2, -1, 1, 17.5),
    Sketcher.Constraint("DistanceX", 2, 2, -1, 1, 288.25),
    Sketcher.Constraint("DistanceX", 0, 2, 0, 1, 18.3988),
])
pocket6 = body.newObject("PartDesign::Pocket", "Pocket005")
pocket6.Profile = sketch19
pocket6.Length = 10
pocket6.Reversed = True

# Sketch on XZ plane
sketch20 = body.newObject("Sketcher::SketchObject", "Sketch019")
sketch20.AttachmentSupport = (doc.getObject("XZ_Plane"), [""])
sketch20.MapMode = "FlatFace"
sketch20.AttachmentOffset = App.Placement(V(0, 0, -7.5), App.Rotation())
sketch20.addGeometry([
    Part.LineSegment(V(-280, 50, 0), V(-270.5687, 50, 0)),  # 0
    Part.LineSegment(V(-270.5687, 50, 0), V(-270.5687, 0, 0)),  # 1
    Part.LineSegment(V(-270.5687, 0, 0), V(-280, 0, 0)),  # 2
    Part.LineSegment(V(-280, 0, 0), V(-280, 50, 0)),  # 3
    Part.LineSegment(V(-219.3019, 8.284, 0), V(-219.3019, 42.5, 0)),  # 4
    Part.LineSegment(V(-219.3019, 42.5, 0), V(-213.3073, 42.5, 0)),  # 5
    Part.LineSegment(V(-213.3073, 42.5, 0), V(-213.3073, 8.284, 0)),  # 6
    Part.LineSegment(V(-213.3073, 8.284, 0), V(-219.3019, 8.284, 0)),  # 7
], False)
sketch20.addConstraint([
    Sketcher.Constraint("Coincident", 0, 2, 1, 1),
    Sketcher.Constraint("Coincident", 1, 2, 2, 1),
    Sketcher.Constraint("Coincident", 2, 2, 3, 1),
    Sketcher.Constraint("Coincident", 3, 2, 0, 1),
    Sketcher.Constraint("Coincident", 4, 2, 5, 1),
    Sketcher.Constraint("Coincident", 5, 2, 6, 1),
    Sketcher.Constraint("Coincident", 6, 2, 7, 1),
    Sketcher.Constraint("Coincident", 7, 2, 4, 1),
    Sketcher.Constraint("Horizontal", 0),
    Sketcher.Constraint("Vertical", 1),
    Sketcher.Constraint("Horizontal", 2),
    Sketcher.Constraint("Vertical", 3),
    Sketcher.Constraint("Vertical", 4),
    Sketcher.Constraint("Horizontal", 5),
    Sketcher.Constraint("Vertical", 6),
    Sketcher.Constraint("Horizontal", 7),
    Sketcher.Constraint("PointOnObject", 1, 2, -1),
    Sketcher.Constraint("DistanceY", 1, 2, 1, 1, 50.0),
    Sketcher.Constraint("DistanceX", 2, 2, -1, 1, 280.0),
    Sketcher.Constraint("DistanceY", -1, 1, 4, 2, 42.5),
    Sketcher.Constraint("DistanceY", 4, 1, 4, 2, 34.216),
    Sketcher.Constraint("DistanceX", 0, 1, 0, 2, 9.4313),
    Sketcher.Constraint("DistanceX", 5, 1, 5, 2, 5.9946),
    Sketcher.Constraint("DistanceX", 4, 2, -1, 1, 219.302),
])
pad10 = body.newObject("PartDesign::Pad", "Pad009")
pad10.Profile = sketch20
pad10.Length = 2

# Sketch on XY plane
sketch21 = body.newObject("Sketcher::SketchObject", "Sketch020")
sketch21.AttachmentSupport = (doc.getObject("XY_Plane"), [""])
sketch21.MapMode = "FlatFace"
sketch21.AttachmentOffset = App.Placement(V(0, 0, -25), App.Rotation())
sketch21.addGeometry([
    Part.Circle(V(-299.2, 2.9, 0), V(0, 0, 1), 2.4429),
    Part.Circle(V(-299.2, 2.9, 0), V(0, 0, 1), 2),
], False)
sketch21.addConstraint([
    Sketcher.Constraint("Coincident", 1, 3, 0, 3),
    Sketcher.Constraint("Diameter", 1, 4.0),
    Sketcher.Constraint("Diameter", 0, 4.8858),
    Sketcher.Constraint("DistanceX", 0, 3, -1, 1, 299.2),
    Sketcher.Constraint("DistanceY", -1, 1, 0, 3, 2.9),
])
pad11 = body.newObject("PartDesign::Pad", "Pad010")
pad11.Profile = sketch21
pad11.Length = 100

# Sketch on XZ plane
sketch22 = body.newObject("Sketcher::SketchObject", "Sketch021")
sketch22.AttachmentSupport = (doc.getObject("XZ_Plane"), [""])
sketch22.MapMode = "FlatFace"
sketch22.AttachmentOffset = App.Placement(V(0, 0, -7.5), App.Rotation())
sketch22.addGeometry([
    Part.LineSegment(V(-306.6488, 67.5, 0), V(-288.25, 67.5, 0)),
    Part.LineSegment(V(-288.25, 67.5, 0), V(-288.25, -17.5, 0)),
    Part.LineSegment(V(-288.25, -17.5, 0), V(-306.6488, -17.5, 0)),
    Part.LineSegment(V(-306.6488, -17.5, 0), V(-306.6488, 67.5, 0)),
], False)
sketch22.addConstraint([
    Sketcher.Constraint("Coincident", 0, 2, 1, 1),
    Sketcher.Constraint("Coincident", 1, 2, 2, 1),
    Sketcher.Constraint("Coincident", 2, 2, 3, 1),
    Sketcher.Constraint("Coincident", 3, 2, 0, 1),
    Sketcher.Constraint("Horizontal", 0),
    Sketcher.Constraint("Vertical", 1),
    Sketcher.Constraint("Horizontal", 2),
    Sketcher.Constraint("Vertical", 3),
    Sketcher.Constraint("DistanceY", 1, 2, 1, 1, 85.0),
    Sketcher.Constraint("DistanceY", -1, 1, 0, 2, 67.5),
    Sketcher.Constraint("DistanceX", 0, 2, -1, 1, 288.25),
    Sketcher.Constraint("DistanceX", 0, 1, 0, 2, 18.3988),
])
pocket7 = body.newObject("PartDesign::Pocket", "Pocket006")
pocket7.Profile = sketch22
pocket7.Length = 100
pocket7.Reversed = True

# Sketch on XZ plane
sketch23 = body.newObject("Sketcher::SketchObject", "Sketch022")
sketch23.AttachmentSupport = (doc.getObject("XZ_Plane"), [""])
sketch23.MapMode = "FlatFace"
sketch23.AttachmentOffset = App.Placement(V(0, 0, -7.5), App.Rotation())
sketch23.addGeometry([
    Part.LineSegment(V(-55, 42.5, 0), V(-50, 42.5, 0)),
    Part.LineSegment(V(-50, 42.5, 0), V(-50, 7.5, 0)),
    Part.LineSegment(V(-50, 7.5, 0), V(-55, 7.5, 0)),
    Part.LineSegment(V(-55, 7.5, 0), V(-55, 42.5, 0)),
], False)
sketch23.addConstraint([
    Sketcher.Constraint("Coincident", 0, 2, 1, 1),
    Sketcher.Constraint("Coincident", 1, 2, 2, 1),
    Sketcher.Constraint("Coincident", 2, 2, 3, 1),
    Sketcher.Constraint("Coincident", 3, 2, 0, 1),
    Sketcher.Constraint("Horizontal", 0),
    Sketcher.Constraint("Vertical", 1),
    Sketcher.Constraint("Horizontal", 2),
    Sketcher.Constraint("Vertical", 3),
    Sketcher.Constraint("DistanceX", 0, 1, 0, 2, 5.0),
    Sketcher.Constraint("DistanceY", 1, 2, 1, 1, 35.0),
    Sketcher.Constraint("DistanceX", 0, 2, -1, 1, 50.0),
    Sketcher.Constraint("DistanceY", -1, 1, 0, 2, 42.5),
])
pad12 = body.newObject("PartDesign::Pad", "Pad011")
pad12.Profile = sketch23
pad12.Length = 2

# Sketch on XZ plane
sketch24 = body.newObject("Sketcher::SketchObject", "Sketch023")
sketch24.AttachmentSupport = (doc.getObject("XZ_Plane"), [""])
sketch24.MapMode = "FlatFace"
sketch24.AttachmentOffset = App.Placement(V(0, 0, -7.5), App.Rotation())
sketch24.addGeometry([
    Part.Circle(V(-50, 37.5, 0), V(0, 0, 1), 1.65),
    Part.Circle(V(-50, 12.5, 0), V(0, 0, 1), 1.65),
    Part.Circle(V(-88.75, 37.5, 0), V(0, 0, 1), 1.65),
    Part.Circle(V(-88.75, 12.5, 0), V(0, 0, 1), 1.65),
], False)
sketch24.addConstraint([
    Sketcher.Constraint("Equal", 0, 1),
    Sketcher.Constraint("Equal", 1, 2),
    Sketcher.Constraint("Equal", 2, 3),
    Sketcher.Constraint("Horizontal", 0, 3, 2, 3),
    Sketcher.Constraint("Horizontal", 1, 3, 3, 3),
    Sketcher.Constraint("Vertical", 0, 3, 1, 3),
    Sketcher.Constraint("Vertical", 2, 3, 3, 3),
    Sketcher.Constraint("Diameter", 0, 3.3),
    Sketcher.Constraint("DistanceX", 0, 3, -1, 1, 50.0),
    Sketcher.Constraint("DistanceY", 1, 3, 0, 3, 25.0),
    Sketcher.Constraint("DistanceY", -1, 1, 0, 3, 37.5),
    Sketcher.Constraint("DistanceX", 2, 3, -1, 1, 88.75),
])
pocket8 = body.newObject("PartDesign::Pocket", "Pocket007")
pocket8.Profile = sketch24
pocket8.Length = 2
pocket8.Reversed = True

# Sketch on XZ plane
sketch25 = body.newObject("Sketcher::SketchObject", "Sketch024")
sketch25.AttachmentSupport = (doc.getObject("XZ_Plane"), [""])
sketch25.MapMode = "FlatFace"
sketch25.AttachmentOffset = App.Placement(V(0, 0, -5.5), App.Rotation())
sketch25.addGeometry([
    Part.LineSegment(V(-55, 7.5, 0), V(-46.6169, 7.5, 0)),
    Part.LineSegment(V(-46.6169, 7.5, 0), V(-46.6169, 42.5, 0)),
    Part.LineSegment(V(-46.6169, 42.5, 0), V(-55, 42.5, 0)),
    Part.LineSegment(V(-55, 42.5, 0), V(-55, 7.5, 0)),
], False)
sketch25.addConstraint([
    Sketcher.Constraint("Coincident", 0, 2, 1, 1),
    Sketcher.Constraint("Coincident", 1, 2, 2, 1),
    Sketcher.Constraint("Coincident", 2, 2, 3, 1),
    Sketcher.Constraint("Coincident", 3, 2, 0, 1),
    Sketcher.Constraint("Horizontal", 0),
    Sketcher.Constraint("Vertical", 1),
    Sketcher.Constraint("Horizontal", 2),
    Sketcher.Constraint("Vertical", 3),
    Sketcher.Constraint("DistanceY", 1, 1, 1, 2, 35.0),
    Sketcher.Constraint("DistanceX", 2, 2, -1, 1, 55.0),
    Sketcher.Constraint("DistanceY", -1, 1, 0, 2, 7.5),
    Sketcher.Constraint("DistanceX", 0, 1, 0, 2, 8.383),
])
pad13 = body.newObject("PartDesign::Pad", "Pad012")
pad13.Profile = sketch25
pad13.Length = 5.5

# Sketch on XZ plane
sketch26 = body.newObject("Sketcher::SketchObject", "Sketch025")
sketch26.AttachmentSupport = (doc.getObject("XZ_Plane"), [""])
sketch26.MapMode = "FlatFace"
sketch26.AttachmentOffset = App.Placement(V(0, 0, -7.5), App.Rotation())
sketch26.addGeometry([
    Part.Circle(V(-50, 12.5, 0), V(0, 0, 1), 1.65),
    Part.Circle(V(-50, 37.5, 0), V(0, 0, 1), 1.65),
], False)
sketch26.addConstraint([
    Sketcher.Constraint("Equal", 0, 1),
    Sketcher.Constraint("Vertical", 0, 3, 1, 3),
    Sketcher.Constraint("Diameter", 0, 3.3),
    Sketcher.Constraint("DistanceX", 0, 3, -1, 1, 50.0),
    Sketcher.Constraint("DistanceY", 0, 3, 1, 3, 25.0),
    Sketcher.Constraint("DistanceY", -1, 1, 0, 3, 12.5),
])
doc.recompute()
hole5 = body.newObject("PartDesign::Hole", "Hole004")
hole5.Profile = sketch26
hole5.ThreadType = "None"
hole5.Diameter = 3.3
hole5.DepthType = "Dimension"
hole5.Depth = 8
hole5.DrillPoint = "Angled"
hole5.DrillPointAngle = 118
hole5.Reversed = True

# Sketch on XZ plane
sketch27 = body.newObject("Sketcher::SketchObject", "Sketch026")
sketch27.AttachmentSupport = (doc.getObject("XZ_Plane"), [""])
sketch27.MapMode = "FlatFace"
sketch27.AttachmentOffset = App.Placement(V(0, 0, -7.5), App.Rotation())
sketch27.addGeometry([
    Part.Circle(V(-15.675, 46, 0), V(0, 0, 1), 1.65),
    Part.Circle(V(-15.675, 4, 0), V(0, 0, 1), 1.65),
], False)
sketch27.addConstraint([
    Sketcher.Constraint("Equal", 0, 1),
    Sketcher.Constraint("Vertical", 0, 3, 1, 3),
    Sketcher.Constraint("Diameter", 0, 3.3),
    Sketcher.Constraint("DistanceY", 1, 3, 0, 3, 42.0),
    Sketcher.Constraint("DistanceY", -1, 1, 0, 3, 46.0),
    Sketcher.Constraint("DistanceX", 0, 3, -1, 1, 15.675),
])
pocket9 = body.newObject("PartDesign::Pocket", "Pocket008")
pocket9.Profile = sketch27
pocket9.Length = 10
pocket9.Reversed = True

# Sketch on XZ plane
sketch28 = body.newObject("Sketcher::SketchObject", "Sketch027")
sketch28.AttachmentSupport = (doc.getObject("XZ_Plane"), [""])
sketch28.MapMode = "FlatFace"
sketch28.AttachmentOffset = App.Placement(V(0, 0, -7.5), App.Rotation())
sketch28.addGeometry([
    Part.Circle(V(-7.175, 4, 0), V(0, 0, 1), 2.1021),
    Part.Circle(V(-24.175, 46, 0), V(0, 0, 1), 2.9173),
], False)
sketch28.addConstraint([
    Sketcher.Constraint("DistanceY", -1, 1, 0, 3, 4.0),
    Sketcher.Constraint("DistanceY", -1, 1, 1, 3, 46.0),
    Sketcher.Constraint("DistanceX", 1, 3, 0, 3, 17.0),
    Sketcher.Constraint("Diameter", 0, 4.2042),
    Sketcher.Constraint("Diameter", 1, 5.8346),
    Sketcher.Constraint("DistanceX", 0, 3, -1, 1, 7.175),
])
pad14 = body.newObject("PartDesign::Pad", "Pad013")
pad14.Profile = sketch28
pad14.Length = 7.5

# Sketch on XZ plane
sketch29 = body.newObject("Sketcher::SketchObject", "Sketch028")
sketch29.AttachmentSupport = (doc.getObject("XZ_Plane"), [""])
sketch29.MapMode = "FlatFace"
sketch29.AttachmentOffset = App.Placement(V(0, 0, -7.5), App.Rotation())
sketch29.addGeometry([
    Part.LineSegment(V(-177.5, 0, 0), V(-177.5, 50, 0)),
    Part.LineSegment(V(-177.5, 50, 0), V(0, 50, 0)),
    Part.LineSegment(V(0, 50, 0), V(0, 0, 0)),
    Part.LineSegment(V(0, 0, 0), V(-177.5, 0, 0)),
], False)
sketch29.addConstraint([
    Sketcher.Constraint("Coincident", 0, 2, 1, 1),
    Sketcher.Constraint("Coincident", 1, 2, 2, 1),
    Sketcher.Constraint("Coincident", 2, 2, 3, 1),
    Sketcher.Constraint("Coincident", 3, 2, 0, 1),
    Sketcher.Constraint("Vertical", 0),
    Sketcher.Constraint("Horizontal", 1),
    Sketcher.Constraint("Vertical", 2),
    Sketcher.Constraint("Horizontal", 3),
    Sketcher.Constraint("Coincident", 2, 2, -1, 1),
    Sketcher.Constraint("DistanceY", 0, 1, 0, 2, 50.0),
    Sketcher.Constraint("DistanceX", 1, 1, 1, 2, 177.5),
])
pocket10 = body.newObject("PartDesign::Pocket", "Pocket009")
pocket10.Profile = sketch29
pocket10.Length = 100
pocket10.Midplane = True

# Sketch on YZ plane
sketch30 = body.newObject("Sketcher::SketchObject", "Sketch029")
sketch30.AttachmentSupport = (doc.getObject("YZ_Plane"), [""])
sketch30.MapMode = "FlatFace"
sketch30.AttachmentOffset = App.Placement(V(0, 0, -177.5), App.Rotation())
sketch30.addGeometry([
    Part.LineSegment(V(1.75, 48.25, 0), V(1.75, 44.25, 0)),  # 0
    Part.LineSegment(V(1.75, 44.25, 0), V(5.75, 44.25, 0)),  # 1
    Part.LineSegment(V(5.75, 44.25, 0), V(5.75, 48.25, 0)),  # 2
    Part.LineSegment(V(5.75, 48.25, 0), V(1.75, 48.25, 0)),  # 3
    Part.LineSegment(V(1.75, 5.75, 0), V(1.75, 1.75, 0)),  # 4
    Part.LineSegment(V(1.75, 1.75, 0), V(5.75, 1.75, 0)),  # 5
    Part.LineSegment(V(5.75, 1.75, 0), V(5.75, 5.75, 0)),  # 6
    Part.LineSegment(V(5.75, 5.75, 0), V(1.75, 5.75, 0)),  # 7
], False)
sketch30.addConstraint([
    Sketcher.Constraint("Coincident", 0, 2, 1, 1),
    Sketcher.Constraint("Coincident", 1, 2, 2, 1),
    Sketcher.Constraint("Coincident", 2, 2, 3, 1),
    Sketcher.Constraint("Coincident", 3, 2, 0, 1),
    Sketcher.Constraint("Coincident", 4, 2, 5, 1),
    Sketcher.Constraint("Coincident", 5, 2, 6, 1),
    Sketcher.Constraint("Coincident", 6, 2, 7, 1),
    Sketcher.Constraint("Coincident", 7, 2, 4, 1),
    Sketcher.Constraint("Vertical", 0),
    Sketcher.Constraint("Horizontal", 1),
    Sketcher.Constraint("Vertical", 2),
    Sketcher.Constraint("Horizontal", 3),
    Sketcher.Constraint("Vertical", 4),
    Sketcher.Constraint("Horizontal", 5),
    Sketcher.Constraint("Vertical", 6),
    Sketcher.Constraint("Horizontal", 7),
    Sketcher.Constraint("Vertical", 3, 2, 4, 2),
    Sketcher.Constraint("Vertical", 2, 2, 5, 2),
    Sketcher.Constraint("Equal", 7, 0),
    Sketcher.Constraint("Equal", 2, 4),
    Sketcher.Constraint("DistanceX", 1, 1, 1, 2, 4.0),
    Sketcher.Constraint("DistanceY", 4, 2, 0, 2, 42.5),
    Sketcher.Constraint("DistanceX", -1, 1, 0, 2, 1.75),
    Sketcher.Constraint("DistanceY", -1, 1, 0, 2, 44.25),
])
pocket11 = body.newObject("PartDesign::Pocket", "Pocket010")
pocket11.Profile = sketch30
pocket11.Length = 10

doc.recompute()
